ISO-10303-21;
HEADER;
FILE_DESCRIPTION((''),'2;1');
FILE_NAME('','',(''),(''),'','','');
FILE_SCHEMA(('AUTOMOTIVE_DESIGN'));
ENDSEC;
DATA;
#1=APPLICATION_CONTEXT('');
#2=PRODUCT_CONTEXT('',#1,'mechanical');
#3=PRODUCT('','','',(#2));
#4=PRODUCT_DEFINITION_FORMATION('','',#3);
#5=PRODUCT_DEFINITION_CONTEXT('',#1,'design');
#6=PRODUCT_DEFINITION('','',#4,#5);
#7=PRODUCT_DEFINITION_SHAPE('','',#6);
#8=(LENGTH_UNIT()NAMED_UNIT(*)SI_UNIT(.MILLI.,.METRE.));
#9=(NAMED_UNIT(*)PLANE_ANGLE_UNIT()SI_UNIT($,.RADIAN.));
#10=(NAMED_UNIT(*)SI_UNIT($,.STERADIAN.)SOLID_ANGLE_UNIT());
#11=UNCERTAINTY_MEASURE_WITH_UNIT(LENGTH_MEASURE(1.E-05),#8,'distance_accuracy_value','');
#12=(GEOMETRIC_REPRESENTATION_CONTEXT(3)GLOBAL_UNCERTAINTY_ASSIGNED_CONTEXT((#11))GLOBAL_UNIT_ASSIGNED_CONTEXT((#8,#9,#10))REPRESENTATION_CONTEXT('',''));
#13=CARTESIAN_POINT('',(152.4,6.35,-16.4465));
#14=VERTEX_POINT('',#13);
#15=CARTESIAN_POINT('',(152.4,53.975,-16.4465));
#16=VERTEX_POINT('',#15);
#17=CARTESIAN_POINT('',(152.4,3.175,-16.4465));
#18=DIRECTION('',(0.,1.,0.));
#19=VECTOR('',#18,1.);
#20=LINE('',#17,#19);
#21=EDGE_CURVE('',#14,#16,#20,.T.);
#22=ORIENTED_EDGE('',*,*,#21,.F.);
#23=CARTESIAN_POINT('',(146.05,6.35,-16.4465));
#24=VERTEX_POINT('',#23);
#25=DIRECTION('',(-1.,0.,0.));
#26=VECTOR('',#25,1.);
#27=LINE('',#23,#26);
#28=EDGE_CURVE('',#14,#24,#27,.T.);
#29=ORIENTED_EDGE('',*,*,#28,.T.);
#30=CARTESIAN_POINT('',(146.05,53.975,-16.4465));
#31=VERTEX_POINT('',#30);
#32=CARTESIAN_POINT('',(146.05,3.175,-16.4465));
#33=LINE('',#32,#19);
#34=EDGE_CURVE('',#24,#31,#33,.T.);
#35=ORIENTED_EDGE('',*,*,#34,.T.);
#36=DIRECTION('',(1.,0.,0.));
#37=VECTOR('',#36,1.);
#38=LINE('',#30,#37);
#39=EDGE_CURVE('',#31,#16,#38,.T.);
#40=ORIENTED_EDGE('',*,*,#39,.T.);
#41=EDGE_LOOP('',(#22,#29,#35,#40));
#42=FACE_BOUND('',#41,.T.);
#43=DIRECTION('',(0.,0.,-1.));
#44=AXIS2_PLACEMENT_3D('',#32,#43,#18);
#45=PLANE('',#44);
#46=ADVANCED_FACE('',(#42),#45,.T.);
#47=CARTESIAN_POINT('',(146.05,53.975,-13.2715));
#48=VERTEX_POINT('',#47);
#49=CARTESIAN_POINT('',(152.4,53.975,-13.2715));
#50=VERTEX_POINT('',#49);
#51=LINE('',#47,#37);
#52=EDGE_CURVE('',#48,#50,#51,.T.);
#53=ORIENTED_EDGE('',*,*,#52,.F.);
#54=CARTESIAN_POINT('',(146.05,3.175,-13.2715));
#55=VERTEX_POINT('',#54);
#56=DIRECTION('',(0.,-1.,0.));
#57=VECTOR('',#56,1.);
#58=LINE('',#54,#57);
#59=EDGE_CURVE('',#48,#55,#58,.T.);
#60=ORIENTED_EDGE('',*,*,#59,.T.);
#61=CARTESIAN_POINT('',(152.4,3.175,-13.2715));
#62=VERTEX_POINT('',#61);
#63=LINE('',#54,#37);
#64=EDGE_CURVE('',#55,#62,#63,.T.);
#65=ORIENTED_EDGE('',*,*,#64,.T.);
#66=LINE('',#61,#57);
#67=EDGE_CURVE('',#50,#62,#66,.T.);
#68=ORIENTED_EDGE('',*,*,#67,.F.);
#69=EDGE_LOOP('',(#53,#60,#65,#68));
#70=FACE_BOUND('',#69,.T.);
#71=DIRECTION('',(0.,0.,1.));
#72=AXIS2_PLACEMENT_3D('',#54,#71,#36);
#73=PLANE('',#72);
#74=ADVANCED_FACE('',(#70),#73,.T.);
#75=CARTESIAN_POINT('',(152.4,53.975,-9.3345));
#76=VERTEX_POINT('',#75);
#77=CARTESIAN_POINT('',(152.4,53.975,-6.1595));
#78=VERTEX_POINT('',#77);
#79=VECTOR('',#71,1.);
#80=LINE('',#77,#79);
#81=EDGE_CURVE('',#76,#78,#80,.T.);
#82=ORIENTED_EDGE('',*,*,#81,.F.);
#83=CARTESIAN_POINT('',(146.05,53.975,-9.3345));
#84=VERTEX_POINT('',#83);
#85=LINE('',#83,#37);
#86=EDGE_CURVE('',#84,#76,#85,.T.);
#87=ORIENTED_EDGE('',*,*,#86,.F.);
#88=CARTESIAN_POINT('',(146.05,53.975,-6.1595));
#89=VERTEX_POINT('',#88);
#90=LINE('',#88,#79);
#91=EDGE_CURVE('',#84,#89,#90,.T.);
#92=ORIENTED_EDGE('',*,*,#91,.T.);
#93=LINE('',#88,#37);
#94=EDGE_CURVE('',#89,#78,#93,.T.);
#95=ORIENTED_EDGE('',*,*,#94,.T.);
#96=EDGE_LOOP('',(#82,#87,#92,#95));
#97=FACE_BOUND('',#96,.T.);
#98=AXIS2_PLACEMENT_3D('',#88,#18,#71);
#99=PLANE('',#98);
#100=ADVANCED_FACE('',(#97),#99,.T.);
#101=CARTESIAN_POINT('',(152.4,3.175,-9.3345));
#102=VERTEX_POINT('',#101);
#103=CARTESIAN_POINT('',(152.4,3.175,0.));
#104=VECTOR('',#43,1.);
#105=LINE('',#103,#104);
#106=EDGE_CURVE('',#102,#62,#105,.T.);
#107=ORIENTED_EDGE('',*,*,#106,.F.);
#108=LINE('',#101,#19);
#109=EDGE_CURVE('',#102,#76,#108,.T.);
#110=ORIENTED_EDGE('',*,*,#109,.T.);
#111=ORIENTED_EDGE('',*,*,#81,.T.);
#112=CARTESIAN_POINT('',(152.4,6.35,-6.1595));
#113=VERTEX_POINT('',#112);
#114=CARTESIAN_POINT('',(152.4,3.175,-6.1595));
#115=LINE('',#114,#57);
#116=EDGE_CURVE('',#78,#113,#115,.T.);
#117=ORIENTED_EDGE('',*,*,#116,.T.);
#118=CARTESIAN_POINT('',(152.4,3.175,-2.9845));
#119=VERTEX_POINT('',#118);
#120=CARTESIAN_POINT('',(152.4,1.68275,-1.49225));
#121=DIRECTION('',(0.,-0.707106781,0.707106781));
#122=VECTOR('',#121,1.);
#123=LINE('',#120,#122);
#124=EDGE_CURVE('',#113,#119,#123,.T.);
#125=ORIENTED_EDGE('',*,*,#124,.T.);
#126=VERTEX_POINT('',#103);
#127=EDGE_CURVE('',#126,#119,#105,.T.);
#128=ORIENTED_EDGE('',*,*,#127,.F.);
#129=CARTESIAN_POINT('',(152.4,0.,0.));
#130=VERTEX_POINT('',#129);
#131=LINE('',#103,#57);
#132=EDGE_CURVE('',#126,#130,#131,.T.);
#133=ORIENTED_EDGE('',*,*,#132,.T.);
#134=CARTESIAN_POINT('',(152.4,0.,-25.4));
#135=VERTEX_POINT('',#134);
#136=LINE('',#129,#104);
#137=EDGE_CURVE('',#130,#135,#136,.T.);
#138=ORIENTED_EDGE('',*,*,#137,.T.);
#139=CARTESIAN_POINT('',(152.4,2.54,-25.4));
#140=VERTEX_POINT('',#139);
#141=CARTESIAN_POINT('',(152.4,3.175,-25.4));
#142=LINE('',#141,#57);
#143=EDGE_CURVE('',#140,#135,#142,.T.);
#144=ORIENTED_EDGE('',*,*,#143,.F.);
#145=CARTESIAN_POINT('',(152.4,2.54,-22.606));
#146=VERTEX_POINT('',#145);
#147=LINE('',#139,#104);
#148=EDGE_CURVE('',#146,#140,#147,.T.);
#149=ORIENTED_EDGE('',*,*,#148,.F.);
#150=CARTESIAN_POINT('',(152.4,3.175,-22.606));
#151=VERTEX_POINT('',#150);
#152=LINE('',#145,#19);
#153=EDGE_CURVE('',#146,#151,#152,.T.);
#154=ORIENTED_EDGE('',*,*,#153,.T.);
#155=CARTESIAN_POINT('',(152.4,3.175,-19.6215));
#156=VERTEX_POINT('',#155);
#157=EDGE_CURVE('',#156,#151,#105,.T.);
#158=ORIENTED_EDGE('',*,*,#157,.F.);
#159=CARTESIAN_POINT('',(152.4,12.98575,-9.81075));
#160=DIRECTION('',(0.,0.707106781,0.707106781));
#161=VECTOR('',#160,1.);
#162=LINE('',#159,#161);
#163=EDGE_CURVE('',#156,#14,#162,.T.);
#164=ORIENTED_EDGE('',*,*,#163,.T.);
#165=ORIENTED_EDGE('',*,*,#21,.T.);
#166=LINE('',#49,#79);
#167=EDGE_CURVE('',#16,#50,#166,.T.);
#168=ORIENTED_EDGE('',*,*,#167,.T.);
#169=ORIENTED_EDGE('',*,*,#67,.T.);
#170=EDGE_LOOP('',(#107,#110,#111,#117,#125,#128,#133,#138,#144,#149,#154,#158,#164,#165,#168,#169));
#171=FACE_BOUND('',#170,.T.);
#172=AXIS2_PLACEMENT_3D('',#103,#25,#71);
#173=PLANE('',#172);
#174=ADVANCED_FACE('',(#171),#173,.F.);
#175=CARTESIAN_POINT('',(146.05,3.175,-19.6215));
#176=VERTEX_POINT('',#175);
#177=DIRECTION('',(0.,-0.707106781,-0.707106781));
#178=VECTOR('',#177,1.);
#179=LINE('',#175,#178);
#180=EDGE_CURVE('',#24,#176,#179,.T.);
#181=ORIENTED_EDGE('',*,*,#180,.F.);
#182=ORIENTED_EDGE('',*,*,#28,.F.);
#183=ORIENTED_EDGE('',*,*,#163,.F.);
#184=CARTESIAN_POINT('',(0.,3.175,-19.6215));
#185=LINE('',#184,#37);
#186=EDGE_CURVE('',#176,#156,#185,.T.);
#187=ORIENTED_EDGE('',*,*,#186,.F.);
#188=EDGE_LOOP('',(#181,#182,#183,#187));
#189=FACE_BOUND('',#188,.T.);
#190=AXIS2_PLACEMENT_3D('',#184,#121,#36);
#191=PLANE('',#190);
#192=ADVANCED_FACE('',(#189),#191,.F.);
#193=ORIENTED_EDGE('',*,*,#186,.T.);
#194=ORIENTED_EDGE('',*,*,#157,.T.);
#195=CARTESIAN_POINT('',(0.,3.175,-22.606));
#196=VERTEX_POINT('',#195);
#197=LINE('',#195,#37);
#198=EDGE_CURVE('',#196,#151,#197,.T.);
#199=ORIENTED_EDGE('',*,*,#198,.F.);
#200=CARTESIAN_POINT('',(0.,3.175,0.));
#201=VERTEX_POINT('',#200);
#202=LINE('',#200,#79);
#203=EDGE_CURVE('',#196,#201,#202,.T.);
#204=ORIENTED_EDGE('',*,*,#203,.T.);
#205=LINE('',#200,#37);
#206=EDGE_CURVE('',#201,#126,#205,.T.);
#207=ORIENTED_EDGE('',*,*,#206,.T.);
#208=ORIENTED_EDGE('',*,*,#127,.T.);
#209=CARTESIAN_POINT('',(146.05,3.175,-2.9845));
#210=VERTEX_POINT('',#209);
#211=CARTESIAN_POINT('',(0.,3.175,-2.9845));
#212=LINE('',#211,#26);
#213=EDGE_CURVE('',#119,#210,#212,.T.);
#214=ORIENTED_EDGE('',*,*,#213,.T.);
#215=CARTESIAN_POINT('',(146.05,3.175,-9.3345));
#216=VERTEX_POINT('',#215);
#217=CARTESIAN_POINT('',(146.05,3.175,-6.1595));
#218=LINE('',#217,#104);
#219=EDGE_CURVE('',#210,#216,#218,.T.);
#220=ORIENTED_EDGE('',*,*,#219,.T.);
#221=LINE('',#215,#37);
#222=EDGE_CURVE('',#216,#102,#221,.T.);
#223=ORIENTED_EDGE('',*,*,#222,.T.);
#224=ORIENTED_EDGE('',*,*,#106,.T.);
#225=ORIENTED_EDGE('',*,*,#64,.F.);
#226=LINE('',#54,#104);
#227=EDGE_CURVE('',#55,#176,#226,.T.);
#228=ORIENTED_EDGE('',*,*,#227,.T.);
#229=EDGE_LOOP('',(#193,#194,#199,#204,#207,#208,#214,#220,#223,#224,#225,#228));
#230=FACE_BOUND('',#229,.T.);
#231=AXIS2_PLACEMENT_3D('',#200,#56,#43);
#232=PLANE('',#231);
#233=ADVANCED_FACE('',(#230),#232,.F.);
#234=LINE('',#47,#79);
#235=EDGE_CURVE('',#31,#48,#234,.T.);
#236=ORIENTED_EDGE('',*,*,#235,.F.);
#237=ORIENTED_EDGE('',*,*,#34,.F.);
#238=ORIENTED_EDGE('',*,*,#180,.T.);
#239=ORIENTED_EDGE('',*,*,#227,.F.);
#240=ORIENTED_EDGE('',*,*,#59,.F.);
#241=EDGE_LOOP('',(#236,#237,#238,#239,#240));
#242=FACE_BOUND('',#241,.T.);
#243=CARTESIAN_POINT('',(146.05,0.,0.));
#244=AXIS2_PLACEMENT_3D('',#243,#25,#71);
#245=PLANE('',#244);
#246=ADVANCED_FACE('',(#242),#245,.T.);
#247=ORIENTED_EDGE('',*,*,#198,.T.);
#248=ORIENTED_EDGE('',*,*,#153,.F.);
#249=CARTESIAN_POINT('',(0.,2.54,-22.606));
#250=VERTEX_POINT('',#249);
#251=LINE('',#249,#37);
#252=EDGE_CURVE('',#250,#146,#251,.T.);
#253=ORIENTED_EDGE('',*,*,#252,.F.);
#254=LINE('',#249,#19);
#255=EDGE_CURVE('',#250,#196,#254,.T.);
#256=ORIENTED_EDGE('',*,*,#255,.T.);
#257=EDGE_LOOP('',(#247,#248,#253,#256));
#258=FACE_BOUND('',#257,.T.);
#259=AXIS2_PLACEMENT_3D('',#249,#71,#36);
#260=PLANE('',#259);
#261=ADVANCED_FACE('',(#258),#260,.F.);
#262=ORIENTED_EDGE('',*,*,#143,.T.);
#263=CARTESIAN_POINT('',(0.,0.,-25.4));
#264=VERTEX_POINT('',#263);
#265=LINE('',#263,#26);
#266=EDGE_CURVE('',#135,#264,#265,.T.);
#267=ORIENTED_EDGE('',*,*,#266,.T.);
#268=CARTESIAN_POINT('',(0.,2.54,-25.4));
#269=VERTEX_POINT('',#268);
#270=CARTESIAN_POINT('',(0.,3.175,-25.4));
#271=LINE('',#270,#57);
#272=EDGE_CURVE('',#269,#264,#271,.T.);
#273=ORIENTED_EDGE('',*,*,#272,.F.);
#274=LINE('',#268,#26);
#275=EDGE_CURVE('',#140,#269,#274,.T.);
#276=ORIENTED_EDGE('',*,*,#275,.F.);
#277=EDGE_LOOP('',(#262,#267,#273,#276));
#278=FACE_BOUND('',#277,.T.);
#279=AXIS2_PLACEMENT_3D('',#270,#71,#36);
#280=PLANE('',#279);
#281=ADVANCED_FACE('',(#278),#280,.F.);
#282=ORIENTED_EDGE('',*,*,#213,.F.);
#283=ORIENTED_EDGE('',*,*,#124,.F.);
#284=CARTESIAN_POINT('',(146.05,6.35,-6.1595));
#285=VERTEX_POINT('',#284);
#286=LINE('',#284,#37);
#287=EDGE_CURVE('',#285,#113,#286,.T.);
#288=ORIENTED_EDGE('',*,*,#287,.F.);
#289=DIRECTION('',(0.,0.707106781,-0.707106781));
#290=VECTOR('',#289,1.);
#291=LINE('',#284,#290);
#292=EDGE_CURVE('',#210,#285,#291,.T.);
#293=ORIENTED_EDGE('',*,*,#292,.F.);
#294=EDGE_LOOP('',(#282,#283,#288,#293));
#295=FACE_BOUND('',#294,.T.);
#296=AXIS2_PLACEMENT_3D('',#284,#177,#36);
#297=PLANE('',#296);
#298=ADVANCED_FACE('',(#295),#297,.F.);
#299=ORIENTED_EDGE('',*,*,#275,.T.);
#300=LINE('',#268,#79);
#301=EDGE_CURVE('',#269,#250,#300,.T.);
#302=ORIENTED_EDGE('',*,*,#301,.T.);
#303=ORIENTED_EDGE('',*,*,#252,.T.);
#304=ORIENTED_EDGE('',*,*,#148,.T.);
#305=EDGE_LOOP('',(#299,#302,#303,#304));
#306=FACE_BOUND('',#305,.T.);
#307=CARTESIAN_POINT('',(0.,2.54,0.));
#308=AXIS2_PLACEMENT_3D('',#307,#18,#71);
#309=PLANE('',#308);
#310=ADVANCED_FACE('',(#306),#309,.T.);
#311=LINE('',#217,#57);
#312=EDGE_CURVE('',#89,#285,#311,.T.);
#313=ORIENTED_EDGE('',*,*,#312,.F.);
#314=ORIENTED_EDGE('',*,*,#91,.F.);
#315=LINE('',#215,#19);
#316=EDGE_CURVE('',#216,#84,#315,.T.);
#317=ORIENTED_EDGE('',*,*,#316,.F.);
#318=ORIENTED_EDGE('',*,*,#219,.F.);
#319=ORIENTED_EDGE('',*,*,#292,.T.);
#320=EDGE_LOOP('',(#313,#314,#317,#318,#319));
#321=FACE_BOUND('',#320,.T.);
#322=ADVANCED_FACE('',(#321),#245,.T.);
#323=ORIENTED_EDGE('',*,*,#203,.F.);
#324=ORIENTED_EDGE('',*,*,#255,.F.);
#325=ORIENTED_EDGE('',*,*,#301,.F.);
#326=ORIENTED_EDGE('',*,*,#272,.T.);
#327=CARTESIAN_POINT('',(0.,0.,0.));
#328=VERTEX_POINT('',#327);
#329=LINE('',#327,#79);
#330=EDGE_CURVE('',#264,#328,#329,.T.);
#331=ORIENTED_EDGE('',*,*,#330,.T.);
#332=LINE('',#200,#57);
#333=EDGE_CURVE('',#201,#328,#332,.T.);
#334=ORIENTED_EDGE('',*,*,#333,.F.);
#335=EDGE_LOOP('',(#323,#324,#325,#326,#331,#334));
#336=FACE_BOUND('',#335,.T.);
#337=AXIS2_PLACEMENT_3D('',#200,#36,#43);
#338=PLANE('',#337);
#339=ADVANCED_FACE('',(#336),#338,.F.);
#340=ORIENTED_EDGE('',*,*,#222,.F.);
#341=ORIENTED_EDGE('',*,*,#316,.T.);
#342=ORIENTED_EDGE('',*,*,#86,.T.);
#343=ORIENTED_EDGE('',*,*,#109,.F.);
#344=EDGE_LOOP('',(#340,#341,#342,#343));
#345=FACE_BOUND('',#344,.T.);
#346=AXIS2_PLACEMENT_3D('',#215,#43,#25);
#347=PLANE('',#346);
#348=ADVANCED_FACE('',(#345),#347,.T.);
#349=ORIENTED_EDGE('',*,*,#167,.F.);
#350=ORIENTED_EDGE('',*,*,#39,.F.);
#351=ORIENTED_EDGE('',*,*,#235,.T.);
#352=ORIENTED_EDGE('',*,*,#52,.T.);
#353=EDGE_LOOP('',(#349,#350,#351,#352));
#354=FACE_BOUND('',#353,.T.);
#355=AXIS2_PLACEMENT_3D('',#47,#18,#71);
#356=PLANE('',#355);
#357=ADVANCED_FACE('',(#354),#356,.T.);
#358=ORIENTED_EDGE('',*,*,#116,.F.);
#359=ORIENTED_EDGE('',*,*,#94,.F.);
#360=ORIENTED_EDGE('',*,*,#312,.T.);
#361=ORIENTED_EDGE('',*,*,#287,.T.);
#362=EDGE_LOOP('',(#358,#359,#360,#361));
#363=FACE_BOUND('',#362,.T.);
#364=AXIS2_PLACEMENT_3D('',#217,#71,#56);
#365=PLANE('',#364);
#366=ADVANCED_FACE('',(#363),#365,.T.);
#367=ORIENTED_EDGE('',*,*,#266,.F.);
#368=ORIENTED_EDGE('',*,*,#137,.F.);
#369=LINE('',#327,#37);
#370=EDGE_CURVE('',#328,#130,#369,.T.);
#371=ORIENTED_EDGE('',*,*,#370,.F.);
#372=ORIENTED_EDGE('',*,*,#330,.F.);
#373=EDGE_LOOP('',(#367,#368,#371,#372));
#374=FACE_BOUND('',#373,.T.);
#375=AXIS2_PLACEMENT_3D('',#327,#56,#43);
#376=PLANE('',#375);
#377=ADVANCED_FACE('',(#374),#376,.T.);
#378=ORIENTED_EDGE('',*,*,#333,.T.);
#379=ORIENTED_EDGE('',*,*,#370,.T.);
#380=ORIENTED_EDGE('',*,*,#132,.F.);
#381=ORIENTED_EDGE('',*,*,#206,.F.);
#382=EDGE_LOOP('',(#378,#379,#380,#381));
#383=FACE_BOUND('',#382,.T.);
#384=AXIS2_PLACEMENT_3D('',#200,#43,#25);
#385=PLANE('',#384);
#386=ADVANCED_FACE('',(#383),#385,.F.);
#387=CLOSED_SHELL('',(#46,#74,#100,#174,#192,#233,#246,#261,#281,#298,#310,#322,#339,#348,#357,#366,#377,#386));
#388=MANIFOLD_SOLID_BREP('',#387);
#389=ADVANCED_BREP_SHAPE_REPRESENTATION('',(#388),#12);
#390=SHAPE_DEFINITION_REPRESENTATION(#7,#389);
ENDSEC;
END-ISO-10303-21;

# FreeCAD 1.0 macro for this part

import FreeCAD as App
import Part
import Sketcher

V = App.Vector
Q = App.Units.Quantity


def edges_at(feature, points):
    """Names of the edges that pass closest to the given points."""
    edges = feature.Shape.Edges
    near = lambda p: min(range(len(edges)), key=lambda i: edges[i].distToShape(Part.Vertex(*p))[0])
    return sorted({f"Edge{near(p) + 1}" for p in points})

doc = App.newDocument("Part")
body = doc.addObject("PartDesign::Body", "Body")

sketch1 = doc.addObject("Sketcher::SketchObject", "Sketch")
body.addObject(sketch1)
sketch1.AttachmentSupport = (doc.XZ_Plane, [""])
sketch1.MapMode = "FlatFace"
sketch1.addGeometry([
    Part.LineSegment(V(0, -25, 0), V(0, 0, 0)),
    Part.LineSegment(V(0, 0, 0), V(152, 0, 0)),
    Part.LineSegment(V(152, 0, 0), V(152, -25, 0)),
    Part.LineSegment(V(152, -25, 0), V(0, -25, 0)),
], False)
sketch1.addConstraint([
    Sketcher.Constraint("Coincident", 0, 2, 1, 1),
    Sketcher.Constraint("Coincident", 1, 2, 2, 1),
    Sketcher.Constraint("Coincident", 2, 2, 3, 1),
    Sketcher.Constraint("Coincident", 3, 2, 0, 1),
    Sketcher.Constraint("Vertical", 0),
    Sketcher.Constraint("Horizontal", 1),
    Sketcher.Constraint("Vertical", 2),
    Sketcher.Constraint("Horizontal", 3),
    Sketcher.Constraint("Coincident", 0, 2, -1, 1),
    Sketcher.Constraint("DistanceX", 1, 1, 1, 2, Q("6 in")),
    Sketcher.Constraint("DistanceY", 0, 1, 0, 2, Q("1 in")),
])
pad1 = doc.addObject("PartDesign::Pad", "Pad")
body.addObject(pad1)
pad1.Profile = sketch1
pad1.Length = Q("0.125 in")
pad1.Reversed = True

sketch2 = doc.addObject("Sketcher::SketchObject", "Sketch001")
body.addObject(sketch2)
sketch2.AttachmentSupport = (doc.XZ_Plane, [""])
sketch2.MapMode = "FlatFace"
sketch2.AttachmentOffset = App.Placement(V(0, 0, -0.125 * 25.4), App.Rotation())
sketch2.addGeometry([
    Part.LineSegment(V(0, -25.4, 0), V(0, -22.6, 0)),
    Part.LineSegment(V(0, -22.6, 0), V(152.4, -22.6, 0)),
    Part.LineSegment(V(152.4, -22.6, 0), V(152.4, -25.4, 0)),
    Part.LineSegment(V(152.4, -25.4, 0), V(0, -25.4, 0)),
], False)
sketch2.addConstraint([
    Sketcher.Constraint("Coincident", 0, 2, 1, 1),
    Sketcher.Constraint("Coincident", 1, 2, 2, 1),
    Sketcher.Constraint("Coincident", 2, 2, 3, 1),
    Sketcher.Constraint("Coincident", 3, 2, 0, 1),
    Sketcher.Constraint("Vertical", 0),
    Sketcher.Constraint("Horizontal", 1),
    Sketcher.Constraint("Vertical", 2),
    Sketcher.Constraint("Horizontal", 3),
    Sketcher.Constraint("PointOnObject", 0, 2, -2),
    Sketcher.Constraint("DistanceX", 1, 1, 1, 2, Q("6 in")),
    Sketcher.Constraint("DistanceY", 2, 2, -1, 1, Q("1 in")),
    Sketcher.Constraint("DistanceY", 0, 1, 0, 2, Q("0.11 in")),
])
pocket1 = doc.addObject("PartDesign::Pocket", "Pocket")
body.addObject(pocket1)
pocket1.Profile = sketch2
pocket1.Length = Q("0.025 in")
pocket1.Reversed = True

sketch3 = doc.addObject("Sketcher::SketchObject", "Sketch002")
body.addObject(sketch3)
sketch3.AttachmentSupport = (doc.YZ_Plane, [""])
sketch3.MapMode = "FlatFace"
sketch3.AttachmentOffset = App.Placement(V(0, 0, 6 * 25.4), App.Rotation())
sketch3.addGeometry([
    Part.LineSegment(V(54, -6.2, 0), V(3.2, -6.2, 0)),
    Part.LineSegment(V(3.2, -6.2, 0), V(3.2, -9.3, 0)),
    Part.LineSegment(V(3.2, -9.3, 0), V(54, -9.3, 0)),
    Part.LineSegment(V(54, -9.3, 0), V(54, -6.2, 0)),
    Part.LineSegment(V(54, -13.3, 0), V(3.2, -13.3, 0)),
    Part.LineSegment(V(3.2, -13.3, 0), V(3.2, -16.4, 0)),
    Part.LineSegment(V(3.2, -16.4, 0), V(54, -16.4, 0)),
    Part.LineSegment(V(54, -16.4, 0), V(54, -13.3, 0)),
], False)
sketch3.addConstraint([
    Sketcher.Constraint("Coincident", 0, 2, 1, 1),
    Sketcher.Constraint("Coincident", 1, 2, 2, 1),
    Sketcher.Constraint("Coincident", 2, 2, 3, 1),
    Sketcher.Constraint("Coincident", 3, 2, 0, 1),
    Sketcher.Constraint("Coincident", 4, 2, 5, 1),
    Sketcher.Constraint("Coincident", 5, 2, 6, 1),
    Sketcher.Constraint("Coincident", 6, 2, 7, 1),
    Sketcher.Constraint("Coincident", 7, 2, 4, 1),
    Sketcher.Constraint("Horizontal", 0),
    Sketcher.Constraint("Vertical", 1),
    Sketcher.Constraint("Horizontal", 2),
    Sketcher.Constraint("Vertical", 3),
    Sketcher.Constraint("Horizontal", 4),
    Sketcher.Constraint("Vertical", 5),
    Sketcher.Constraint("Horizontal", 6),
    Sketcher.Constraint("Vertical", 7),
    Sketcher.Constraint("Vertical", 1, 2, 4, 2),
    Sketcher.Constraint("Vertical", 3, 2, 6, 2),
    Sketcher.Constraint("Equal", 3, 5),
    Sketcher.Constraint("DistanceX", 0, 2, 0, 1, Q("2 in")),
    Sketcher.Constraint("DistanceY", 1, 2, 1, 1, Q("0.125 in")),
    Sketcher.Constraint("DistanceY", 4, 2, 0, 2, Q("0.28 in")),
    Sketcher.Constraint("DistanceX", -1, 1, 0, 2, Q("0.125 in")),
    Sketcher.Constraint("DistanceY", 0, 2, -1, 1, Q("0.2425 in")),
])
pad2 = doc.addObject("PartDesign::Pad", "Pad001")
body.addObject(pad2)
pad2.Profile = sketch3
pad2.Length = Q("0.25 in")
pad2.Reversed = True
doc.recompute()

chamfer = doc.addObject("PartDesign::Chamfer", "Chamfer")
body.addObject(chamfer)
chamfer.Base = (pad2, edges_at(pad2, [(149.225, 3.175, -6.16), (149.225, 3.175, -16.447)]))
chamfer.Size = Q("0.125 in")

doc.recompute()
